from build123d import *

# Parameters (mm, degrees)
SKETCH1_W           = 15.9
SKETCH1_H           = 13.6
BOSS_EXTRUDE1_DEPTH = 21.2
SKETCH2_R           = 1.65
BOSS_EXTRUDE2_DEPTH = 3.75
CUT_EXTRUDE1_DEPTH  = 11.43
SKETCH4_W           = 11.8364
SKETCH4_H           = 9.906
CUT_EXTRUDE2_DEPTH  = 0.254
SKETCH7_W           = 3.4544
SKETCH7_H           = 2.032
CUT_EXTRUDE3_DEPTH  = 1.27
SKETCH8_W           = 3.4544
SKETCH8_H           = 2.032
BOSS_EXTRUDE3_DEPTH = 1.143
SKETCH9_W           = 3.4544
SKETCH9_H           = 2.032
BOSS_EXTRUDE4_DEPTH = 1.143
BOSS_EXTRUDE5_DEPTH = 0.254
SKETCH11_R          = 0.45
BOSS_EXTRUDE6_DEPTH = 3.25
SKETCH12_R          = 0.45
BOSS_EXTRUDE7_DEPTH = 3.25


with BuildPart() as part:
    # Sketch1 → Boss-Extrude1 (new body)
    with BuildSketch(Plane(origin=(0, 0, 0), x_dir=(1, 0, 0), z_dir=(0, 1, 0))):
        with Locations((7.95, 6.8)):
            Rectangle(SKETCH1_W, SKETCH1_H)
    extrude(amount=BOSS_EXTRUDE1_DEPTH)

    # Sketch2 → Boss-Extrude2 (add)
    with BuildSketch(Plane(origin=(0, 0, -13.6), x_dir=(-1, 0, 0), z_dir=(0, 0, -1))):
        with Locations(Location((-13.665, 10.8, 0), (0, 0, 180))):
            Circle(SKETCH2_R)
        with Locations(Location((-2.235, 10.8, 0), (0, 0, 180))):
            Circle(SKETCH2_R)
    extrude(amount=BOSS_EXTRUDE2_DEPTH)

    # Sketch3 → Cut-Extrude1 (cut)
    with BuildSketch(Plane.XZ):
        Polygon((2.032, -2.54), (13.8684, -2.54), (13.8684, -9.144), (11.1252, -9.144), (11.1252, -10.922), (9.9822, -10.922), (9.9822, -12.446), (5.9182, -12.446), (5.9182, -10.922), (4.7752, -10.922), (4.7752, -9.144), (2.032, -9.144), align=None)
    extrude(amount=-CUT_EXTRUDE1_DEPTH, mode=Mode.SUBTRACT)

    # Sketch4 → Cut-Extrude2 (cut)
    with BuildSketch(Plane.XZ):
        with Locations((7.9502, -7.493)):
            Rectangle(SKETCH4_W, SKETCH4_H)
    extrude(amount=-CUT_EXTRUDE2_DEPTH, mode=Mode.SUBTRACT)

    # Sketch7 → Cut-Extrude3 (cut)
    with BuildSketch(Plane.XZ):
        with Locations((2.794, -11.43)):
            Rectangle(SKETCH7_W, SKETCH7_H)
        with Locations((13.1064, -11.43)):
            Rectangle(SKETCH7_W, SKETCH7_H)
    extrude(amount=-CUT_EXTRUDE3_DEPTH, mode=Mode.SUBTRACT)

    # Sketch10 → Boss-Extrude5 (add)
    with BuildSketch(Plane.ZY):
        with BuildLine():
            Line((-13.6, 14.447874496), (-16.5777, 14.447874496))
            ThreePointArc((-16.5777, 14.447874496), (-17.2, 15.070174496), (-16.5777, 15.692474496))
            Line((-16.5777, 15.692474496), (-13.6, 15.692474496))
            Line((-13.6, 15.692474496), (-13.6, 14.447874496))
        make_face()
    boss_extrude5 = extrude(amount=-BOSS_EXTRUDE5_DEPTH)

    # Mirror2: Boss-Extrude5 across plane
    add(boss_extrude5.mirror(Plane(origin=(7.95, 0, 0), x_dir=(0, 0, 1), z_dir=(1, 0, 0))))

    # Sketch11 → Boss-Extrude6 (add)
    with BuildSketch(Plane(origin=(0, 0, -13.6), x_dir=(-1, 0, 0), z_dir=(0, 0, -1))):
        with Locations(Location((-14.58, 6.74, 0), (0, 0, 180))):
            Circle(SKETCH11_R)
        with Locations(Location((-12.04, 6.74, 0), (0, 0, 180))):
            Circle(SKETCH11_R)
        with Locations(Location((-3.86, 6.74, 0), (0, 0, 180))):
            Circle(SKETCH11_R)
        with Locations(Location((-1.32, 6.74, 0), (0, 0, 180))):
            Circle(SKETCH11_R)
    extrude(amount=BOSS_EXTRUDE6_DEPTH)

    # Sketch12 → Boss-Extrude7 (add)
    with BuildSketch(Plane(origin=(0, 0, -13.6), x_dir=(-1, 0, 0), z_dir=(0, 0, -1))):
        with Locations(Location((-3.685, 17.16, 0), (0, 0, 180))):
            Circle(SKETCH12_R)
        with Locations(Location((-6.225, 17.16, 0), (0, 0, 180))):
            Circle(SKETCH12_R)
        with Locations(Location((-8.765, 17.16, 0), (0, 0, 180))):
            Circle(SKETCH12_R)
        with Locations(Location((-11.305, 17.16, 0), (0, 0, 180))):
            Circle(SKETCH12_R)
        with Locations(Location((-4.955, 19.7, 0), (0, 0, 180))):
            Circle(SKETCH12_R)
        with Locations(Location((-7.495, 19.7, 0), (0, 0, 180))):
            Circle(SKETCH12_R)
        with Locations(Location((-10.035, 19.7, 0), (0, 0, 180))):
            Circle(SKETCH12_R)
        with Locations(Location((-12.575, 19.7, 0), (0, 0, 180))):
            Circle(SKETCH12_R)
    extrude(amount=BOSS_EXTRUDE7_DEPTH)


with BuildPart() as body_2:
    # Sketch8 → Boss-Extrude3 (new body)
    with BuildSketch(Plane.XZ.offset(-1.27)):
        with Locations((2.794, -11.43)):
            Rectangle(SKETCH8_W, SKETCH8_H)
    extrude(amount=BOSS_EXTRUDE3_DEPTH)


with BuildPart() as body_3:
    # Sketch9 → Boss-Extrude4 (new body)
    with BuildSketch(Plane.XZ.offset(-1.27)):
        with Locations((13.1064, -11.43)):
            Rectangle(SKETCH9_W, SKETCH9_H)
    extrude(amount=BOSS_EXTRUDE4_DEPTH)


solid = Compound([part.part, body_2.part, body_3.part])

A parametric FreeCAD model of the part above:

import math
import FreeCAD as App
import Part
import Sketcher

V = App.Vector
Q = App.Units.Quantity

doc = App.newDocument("Part")
body = doc.addObject("PartDesign::Body", "Body")

# Sketch on XZ plane
sketch1 = doc.addObject("Sketcher::SketchObject", "Sketch")
body.addObject(sketch1)
sketch1.AttachmentSupport = (doc.XZ_Plane, [""])
sketch1.MapMode = "FlatFace"
sketch1.addGeometry(Part.LineSegment(V(0, -13.6, 0), V(0, 0, 0)), False)
sketch1.addGeometry(Part.LineSegment(V(0, 0, 0), V(15.9, 0, 0)), False)
sketch1.addGeometry(Part.LineSegment(V(15.9, 0, 0), V(15.9, -13.6, 0)), False)
sketch1.addGeometry(Part.LineSegment(V(15.9, -13.6, 0), V(0, -13.6, 0)), False)
sketch1.addConstraint(Sketcher.Constraint("Coincident", 0, 2, 1, 1))
sketch1.addConstraint(Sketcher.Constraint("Coincident", 1, 2, 2, 1))
sketch1.addConstraint(Sketcher.Constraint("Coincident", 2, 2, 3, 1))
sketch1.addConstraint(Sketcher.Constraint("Coincident", 3, 2, 0, 1))
sketch1.addConstraint(Sketcher.Constraint("Vertical", 0))
sketch1.addConstraint(Sketcher.Constraint("Horizontal", 1))
sketch1.addConstraint(Sketcher.Constraint("Vertical", 2))
sketch1.addConstraint(Sketcher.Constraint("Horizontal", 3))
sketch1.addConstraint(Sketcher.Constraint("Coincident", 0, 2, -1, 1))
sketch1.addConstraint(Sketcher.Constraint("DistanceX", 1, 1, 1, 2, 15.9))
sketch1.addConstraint(Sketcher.Constraint("DistanceY", 0, 1, 0, 2, 13.6))
pad1 = doc.addObject("PartDesign::Pad", "Pad")
body.addObject(pad1)
pad1.Profile = sketch1
pad1.Length = 21.2
pad1.Reversed = True

# Sketch on XY plane
sketch2 = doc.addObject("Sketcher::SketchObject", "Sketch001")
body.addObject(sketch2)
sketch2.AttachmentSupport = (doc.XY_Plane, [""])
sketch2.MapMode = "FlatFace"
sketch2.AttachmentOffset = App.Placement(V(0, 0, -13.6), App.Rotation())
sketch2.addGeometry(Part.Circle(V(13.665, 10.8, 0), V(0, 0, 1), 1.65), False)
sketch2.addGeometry(Part.Circle(V(2.235, 10.8, 0), V(0, 0, 1), 1.65), False)
sketch2.addConstraint(Sketcher.Constraint("Equal", 0, 1))
sketch2.addConstraint(Sketcher.Constraint("Horizontal", 0, 3, 1, 3))
sketch2.addConstraint(Sketcher.Constraint("Diameter", 0, 3.3))
sketch2.addConstraint(Sketcher.Constraint("DistanceX", 1, 3, 0, 3, Q("0.45 in")))
sketch2.addConstraint(Sketcher.Constraint("DistanceX", -1, 1, 0, 3, 13.665))
sketch2.addConstraint(Sketcher.Constraint("DistanceY", -1, 1, 0, 3, 10.8))
pad2 = doc.addObject("PartDesign::Pad", "Pad001")
body.addObject(pad2)
pad2.Profile = sketch2
pad2.Length = 3.75
pad2.Reversed = True

# Sketch on XZ plane
sketch3 = doc.addObject("Sketcher::SketchObject", "Sketch002")
body.addObject(sketch3)
sketch3.AttachmentSupport = (doc.XZ_Plane, [""])
sketch3.MapMode = "FlatFace"
sketch3.addGeometry(Part.LineSegment(V(13.8684, -2.54, 0), V(2.032, -2.54, 0)), False)
sketch3.addGeometry(Part.LineSegment(V(2.032, -2.54, 0), V(2.032, -9.144, 0)), False)
sketch3.addGeometry(Part.LineSegment(V(2.032, -9.144, 0), V(4.7752, -9.144, 0)), False)
sketch3.addGeometry(Part.LineSegment(V(4.7752, -9.144, 0), V(4.7752, -10.922, 0)), False)
sketch3.addGeometry(Part.LineSegment(V(4.7752, -10.922, 0), V(5.9182, -10.922, 0)), False)
sketch3.addGeometry(Part.LineSegment(V(5.9182, -10.922, 0), V(5.9182, -12.446, 0)), False)
sketch3.addGeometry(Part.LineSegment(V(5.9182, -12.446, 0), V(9.9822, -12.446, 0)), False)
sketch3.addGeometry(Part.LineSegment(V(9.9822, -12.446, 0), V(9.9822, -10.922, 0)), False)
sketch3.addGeometry(Part.LineSegment(V(9.9822, -10.922, 0), V(11.1252, -10.922, 0)), False)
sketch3.addGeometry(Part.LineSegment(V(11.1252, -10.922, 0), V(11.1252, -9.144, 0)), False)
sketch3.addGeometry(Part.LineSegment(V(11.1252, -9.144, 0), V(13.8684, -9.144, 0)), False)
sketch3.addGeometry(Part.LineSegment(V(13.8684, -9.144, 0), V(13.8684, -2.54, 0)), False)
sketch3.addConstraint(Sketcher.Constraint("Coincident", 0, 2, 1, 1))
sketch3.addConstraint(Sketcher.Constraint("Coincident", 1, 2, 2, 1))
sketch3.addConstraint(Sketcher.Constraint("Coincident", 2, 2, 3, 1))
sketch3.addConstraint(Sketcher.Constraint("Coincident", 3, 2, 4, 1))
sketch3.addConstraint(Sketcher.Constraint("Coincident", 4, 2, 5, 1))
sketch3.addConstraint(Sketcher.Constraint("Coincident", 5, 2, 6, 1))
sketch3.addConstraint(Sketcher.Constraint("Coincident", 6, 2, 7, 1))
sketch3.addConstraint(Sketcher.Constraint("Coincident", 7, 2, 8, 1))
sketch3.addConstraint(Sketcher.Constraint("Coincident", 8, 2, 9, 1))
sketch3.addConstraint(Sketcher.Constraint("Coincident", 9, 2, 10, 1))
sketch3.addConstraint(Sketcher.Constraint("Coincident", 10, 2, 11, 1))
sketch3.addConstraint(Sketcher.Constraint("Coincident", 11, 2, 0, 1))
sketch3.addConstraint(Sketcher.Constraint("Horizontal", 0))
sketch3.addConstraint(Sketcher.Constraint("Vertical", 1))
sketch3.addConstraint(Sketcher.Constraint("Horizontal", 2))
sketch3.addConstraint(Sketcher.Constraint("Vertical", 3))
sketch3.addConstraint(Sketcher.Constraint("Horizontal", 4))
sketch3.addConstraint(Sketcher.Constraint("Vertical", 5))
sketch3.addConstraint(Sketcher.Constraint("Horizontal", 6))
sketch3.addConstraint(Sketcher.Constraint("Vertical", 7))
sketch3.addConstraint(Sketcher.Constraint("Horizontal", 8))
sketch3.addConstraint(Sketcher.Constraint("Vertical", 9))
sketch3.addConstraint(Sketcher.Constraint("Horizontal", 10))
sketch3.addConstraint(Sketcher.Constraint("Vertical", 11))
sketch3.addConstraint(Sketcher.Constraint("Horizontal", 4, 2, 7, 2))
sketch3.addConstraint(Sketcher.Constraint("Horizontal", 2, 2, 9, 2))
sketch3.addConstraint(Sketcher.Constraint("Equal", 4, 8))
sketch3.addConstraint(Sketcher.Constraint("Equal", 2, 10))
sketch3.addConstraint(Sketcher.Constraint("DistanceX", 6, 1, 6, 2, Q("0.16 in")))
sketch3.addConstraint(Sketcher.Constraint("DistanceY", 1, 2, 1, 1, Q("0.26 in")))
sketch3.addConstraint(Sketcher.Constraint("DistanceY", 3, 2, 3, 1, Q("0.07 in")))
sketch3.addConstraint(Sketcher.Constraint("DistanceY", 5, 2, 5, 1, Q("0.06 in")))
sketch3.addConstraint(Sketcher.Constraint("DistanceY", 0, 2, -1, 1, Q("0.1 in")))
sketch3.addConstraint(Sketcher.Constraint("DistanceX", 0, 2, 0, 1, Q("0.466 in")))
sketch3.addConstraint(Sketcher.Constraint("DistanceX", 2, 1, 2, 2, Q("0.108 in")))
sketch3.addConstraint(Sketcher.Constraint("DistanceX", -1, 1, 0, 2, Q("0.08 in")))
pocket1 = doc.addObject("PartDesign::Pocket", "Pocket")
body.addObject(pocket1)
pocket1.Profile = sketch3
pocket1.Length = Q("0.45 in")

# Sketch on XZ plane
sketch4 = doc.addObject("Sketcher::SketchObject", "Sketch003")
body.addObject(sketch4)
sketch4.AttachmentSupport = (doc.XZ_Plane, [""])
sketch4.MapMode = "FlatFace"
sketch4.addGeometry(Part.LineSegment(V(2.032, -2.54, 0), V(2.032, -12.446, 0)), False)
sketch4.addGeometry(Part.LineSegment(V(2.032, -12.446, 0), V(13.8684, -12.446, 0)), False)
sketch4.addGeometry(Part.LineSegment(V(13.8684, -12.446, 0), V(13.8684, -2.54, 0)), False)
sketch4.addGeometry(Part.LineSegment(V(13.8684, -2.54, 0), V(2.032, -2.54, 0)), False)
sketch4.addConstraint(Sketcher.Constraint("Coincident", 0, 2, 1, 1))
sketch4.addConstraint(Sketcher.Constraint("Coincident", 1, 2, 2, 1))
sketch4.addConstraint(Sketcher.Constraint("Coincident", 2, 2, 3, 1))
sketch4.addConstraint(Sketcher.Constraint("Coincident", 3, 2, 0, 1))
sketch4.addConstraint(Sketcher.Constraint("Vertical", 0))
sketch4.addConstraint(Sketcher.Constraint("Horizontal", 1))
sketch4.addConstraint(Sketcher.Constraint("Vertical", 2))
sketch4.addConstraint(Sketcher.Constraint("Horizontal", 3))
sketch4.addConstraint(Sketcher.Constraint("DistanceY", 0, 2, 0, 1, Q("0.39 in")))
sketch4.addConstraint(Sketcher.Constraint("DistanceY", 2, 2, -1, 1, Q("0.1 in")))
sketch4.addConstraint(Sketcher.Constraint("DistanceX", 1, 1, 1, 2, Q("0.466 in")))
sketch4.addConstraint(Sketcher.Constraint("DistanceX", -1, 1, 0, 2, Q("0.08 in")))
pocket2 = doc.addObject("PartDesign::Pocket", "Pocket001")
body.addObject(pocket2)
pocket2.Profile = sketch4
pocket2.Length = Q("0.01 in")

# Sketch on XZ plane
sketch5 = doc.addObject("Sketcher::SketchObject", "Sketch004")
body.addObject(sketch5)
sketch5.AttachmentSupport = (doc.XZ_Plane, [""])
sketch5.MapMode = "FlatFace"
sketch5.addGeometry(Part.LineSegment(V(1.0668, -10.414, 0), V(1.0668, -12.446, 0)), False)
sketch5.addGeometry(Part.LineSegment(V(1.0668, -12.446, 0), V(4.5212, -12.446, 0)), False)
sketch5.addGeometry(Part.LineSegment(V(4.5212, -12.446, 0), V(4.5212, -10.414, 0)), False)
sketch5.addGeometry(Part.LineSegment(V(4.5212, -10.414, 0), V(1.0668, -10.414, 0)), False)
sketch5.addGeometry(Part.LineSegment(V(11.3792, -10.414, 0), V(11.3792, -12.446, 0)), False)
sketch5.addGeometry(Part.LineSegment(V(11.3792, -12.446, 0), V(14.8336, -12.446, 0)), False)
sketch5.addGeometry(Part.LineSegment(V(14.8336, -12.446, 0), V(14.8336, -10.414, 0)), False)
sketch5.addGeometry(Part.LineSegment(V(14.8336, -10.414, 0), V(11.3792, -10.414, 0)), False)
sketch5.addConstraint(Sketcher.Constraint("Coincident", 0, 2, 1, 1))
sketch5.addConstraint(Sketcher.Constraint("Coincident", 1, 2, 2, 1))
sketch5.addConstraint(Sketcher.Constraint("Coincident", 2, 2, 3, 1))
sketch5.addConstraint(Sketcher.Constraint("Coincident", 3, 2, 0, 1))
sketch5.addConstraint(Sketcher.Constraint("Coincident", 4, 2, 5, 1))
sketch5.addConstraint(Sketcher.Constraint("Coincident", 5, 2, 6, 1))
sketch5.addConstraint(Sketcher.Constraint("Coincident", 6, 2, 7, 1))
sketch5.addConstraint(Sketcher.Constraint("Coincident", 7, 2, 4, 1))
sketch5.addConstraint(Sketcher.Constraint("Vertical", 0))
sketch5.addConstraint(Sketcher.Constraint("Horizontal", 1))
sketch5.addConstraint(Sketcher.Constraint("Vertical", 2))
sketch5.addConstraint(Sketcher.Constraint("Horizontal", 3))
sketch5.addConstraint(Sketcher.Constraint("Vertical", 4))
sketch5.addConstraint(Sketcher.Constraint("Horizontal", 5))
sketch5.addConstraint(Sketcher.Constraint("Vertical", 6))
sketch5.addConstraint(Sketcher.Constraint("Horizontal", 7))
sketch5.addConstraint(Sketcher.Constraint("Horizontal", 1, 2, 4, 2))
sketch5.addConstraint(Sketcher.Constraint("Horizontal", 3, 2, 6, 2))
sketch5.addConstraint(Sketcher.Constraint("Equal", 3, 5))
sketch5.addConstraint(Sketcher.Constraint("DistanceY", 0, 2, 0, 1, Q("0.08 in")))
sketch5.addConstraint(Sketcher.Constraint("DistanceX", 1, 1, 1, 2, Q("0.136 in")))
sketch5.addConstraint(Sketcher.Constraint("DistanceY", 0, 2, -1, 1, Q("0.49 in")))
sketch5.addConstraint(Sketcher.Constraint("DistanceX", 1, 2, 4, 2, Q("0.27 in")))
sketch5.addConstraint(Sketcher.Constraint("DistanceX", -1, 1, 0, 2, Q("0.042 in")))
pocket3 = doc.addObject("PartDesign::Pocket", "Pocket002")
body.addObject(pocket3)
pocket3.Profile = sketch5
pocket3.Length = Q("0.05 in")

# Sketch on YZ plane
sketch6 = doc.addObject("Sketcher::SketchObject", "Sketch005")
body.addObject(sketch6)
sketch6.AttachmentSupport = (doc.YZ_Plane, [""])
sketch6.MapMode = "FlatFace"
sketch6.addGeometry(Part.LineSegment(V(14.447874, -16.5777, 0), V(14.447874, -13.6, 0)), False)
sketch6.addGeometry(Part.LineSegment(V(14.447874, -13.6, 0), V(15.692474, -13.6, 0)), False)
sketch6.addGeometry(Part.LineSegment(V(15.692474, -13.6, 0), V(15.692474, -16.5777, 0)), False)
sketch6.addGeometry(Part.ArcOfCircle(Part.Circle(V(15.070174, -16.5777, 0), V(0, 0, 1), 0.6223), math.radians(180), math.radians(360)), False)
sketch6.addConstraint(Sketcher.Constraint("Coincident", 0, 2, 1, 1))
sketch6.addConstraint(Sketcher.Constraint("Coincident", 1, 2, 2, 1))
sketch6.addConstraint(Sketcher.Constraint("Tangent", 2, 2, 3, 2))
sketch6.addConstraint(Sketcher.Constraint("Tangent", 3, 1, 0, 1))
sketch6.addConstraint(Sketcher.Constraint("Vertical", 0))
sketch6.addConstraint(Sketcher.Constraint("Horizontal", 1))
sketch6.addConstraint(Sketcher.Constraint("Vertical", 2))
sketch6.addConstraint(Sketcher.Constraint("Radius", 3, Q("0.0245 in")))
sketch6.addConstraint(Sketcher.Constraint("DistanceY", 0, 1, 0, 2, 2.9777))
sketch6.addConstraint(Sketcher.Constraint("DistanceY", 3, 3, -1, 1, 16.5777))
sketch6.addConstraint(Sketcher.Constraint("DistanceX", -1, 1, 3, 3, 15.070174))
pad3 = doc.addObject("PartDesign::Pad", "Pad002")
body.addObject(pad3)
pad3.Profile = sketch6
pad3.Length = Q("0.01 in")
doc.recompute()

datumplane = doc.addObject("PartDesign::Plane", "DatumPlane")
body.addObject(datumplane)
datumplane.AttachmentSupport = (doc.YZ_Plane, [""])
datumplane.MapMode = "FlatFace"
datumplane.AttachmentOffset = App.Placement(V(0, 0, 7.95), App.Rotation())
mirrored = doc.addObject("PartDesign::Mirrored", "Mirrored")
body.addObject(mirrored)
mirrored.Originals = [pad3]
mirrored.MirrorPlane = (datumplane, [""])
body.Tip = mirrored

# Sketch on XY plane
sketch7 = doc.addObject("Sketcher::SketchObject", "Sketch006")
body.addObject(sketch7)
sketch7.AttachmentSupport = (doc.XY_Plane, [""])
sketch7.MapMode = "FlatFace"
sketch7.AttachmentOffset = App.Placement(V(0, 0, -13.6), App.Rotation())
sketch7.addGeometry(Part.Circle(V(14.58, 6.74, 0), V(0, 0, 1), 0.45), False)
sketch7.addGeometry(Part.Circle(V(12.04, 6.74, 0), V(0, 0, 1), 0.45), False)
sketch7.addGeometry(Part.Circle(V(3.86, 6.74, 0), V(0, 0, 1), 0.45), False)
sketch7.addGeometry(Part.Circle(V(1.32, 6.74, 0), V(0, 0, 1), 0.45), False)
sketch7.addConstraint(Sketcher.Constraint("Equal", 0, 1))
sketch7.addConstraint(Sketcher.Constraint("Equal", 1, 2))
sketch7.addConstraint(Sketcher.Constraint("Equal", 2, 3))
sketch7.addConstraint(Sketcher.Constraint("Horizontal", 0, 3, 1, 3))
sketch7.addConstraint(Sketcher.Constraint("Horizontal", 1, 3, 2, 3))
sketch7.addConstraint(Sketcher.Constraint("Horizontal", 2, 3, 3, 3))
sketch7.addConstraint(Sketcher.Constraint("DistanceX", 1, 3, 0, 3, Q("0.1 in")))
sketch7.addConstraint(Sketcher.Constraint("DistanceX", 3, 3, 2, 3, Q("0.1 in")))
sketch7.addConstraint(Sketcher.Constraint("Diameter", 0, 0.9))
sketch7.addConstraint(Sketcher.Constraint("DistanceX", -1, 1, 0, 3, 14.58))
sketch7.addConstraint(Sketcher.Constraint("DistanceY", -1, 1, 0, 3, 6.74))
sketch7.addConstraint(Sketcher.Constraint("DistanceX", -1, 1, 2, 3, 3.86))
pad4 = doc.addObject("PartDesign::Pad", "Pad003")
body.addObject(pad4)
pad4.Profile = sketch7
pad4.Length = 3.25
pad4.Reversed = True

# Sketch on XY plane
sketch8 = doc.addObject("Sketcher::SketchObject", "Sketch007")
body.addObject(sketch8)
sketch8.AttachmentSupport = (doc.XY_Plane, [""])
sketch8.MapMode = "FlatFace"
sketch8.AttachmentOffset = App.Placement(V(0, 0, -13.6), App.Rotation())
sketch8.addGeometry(Part.Circle(V(3.685, 17.16, 0), V(0, 0, 1), 0.45), False)
sketch8.addGeometry(Part.Circle(V(6.225, 17.16, 0), V(0, 0, 1), 0.45), False)
sketch8.addGeometry(Part.Circle(V(8.765, 17.16, 0), V(0, 0, 1), 0.45), False)
sketch8.addGeometry(Part.Circle(V(11.305, 17.16, 0), V(0, 0, 1), 0.45), False)
sketch8.addGeometry(Part.Circle(V(4.955, 19.7, 0), V(0, 0, 1), 0.45), False)
sketch8.addGeometry(Part.Circle(V(7.495, 19.7, 0), V(0, 0, 1), 0.45), False)
sketch8.addGeometry(Part.Circle(V(10.035, 19.7, 0), V(0, 0, 1), 0.45), False)
sketch8.addGeometry(Part.Circle(V(12.575, 19.7, 0), V(0, 0, 1), 0.45), False)
sketch8.addConstraint(Sketcher.Constraint("Equal", 0, 1))
sketch8.addConstraint(Sketcher.Constraint("Equal", 1, 2))
sketch8.addConstraint(Sketcher.Constraint("Equal", 2, 3))
sketch8.addConstraint(Sketcher.Constraint("Equal", 3, 4))
sketch8.addConstraint(Sketcher.Constraint("Equal", 4, 5))
sketch8.addConstraint(Sketcher.Constraint("Equal", 5, 6))
sketch8.addConstraint(Sketcher.Constraint("Equal", 6, 7))
sketch8.addConstraint(Sketcher.Constraint("Horizontal", 0, 3, 1, 3))
sketch8.addConstraint(Sketcher.Constraint("Horizontal", 1, 3, 2, 3))
sketch8.addConstraint(Sketcher.Constraint("Horizontal", 2, 3, 3, 3))
sketch8.addConstraint(Sketcher.Constraint("Horizontal", 4, 3, 5, 3))
sketch8.addConstraint(Sketcher.Constraint("Horizontal", 5, 3, 6, 3))
sketch8.addConstraint(Sketcher.Constraint("Horizontal", 6, 3, 7, 3))
sketch8.addConstraint(Sketcher.Constraint("DistanceX", 0, 3, 1, 3, Q("0.1 in")))
sketch8.addConstraint(Sketcher.Constraint("DistanceX", 1, 3, 2, 3, Q("0.1 in")))
sketch8.addConstraint(Sketcher.Constraint("DistanceX", 2, 3, 3, 3, Q("0.1 in")))
sketch8.addConstraint(Sketcher.Constraint("DistanceY", 1, 3, 4, 3, Q("0.1 in")))
sketch8.addConstraint(Sketcher.Constraint("DistanceX", 4, 3, 5, 3, Q("0.1 in")))
sketch8.addConstraint(Sketcher.Constraint("DistanceX", 5, 3, 6, 3, Q("0.1 in")))
sketch8.addConstraint(Sketcher.Constraint("DistanceX", 6, 3, 7, 3, Q("0.1 in")))
sketch8.addConstraint(Sketcher.Constraint("Diameter", 0, 0.9))
sketch8.addConstraint(Sketcher.Constraint("DistanceX", 4, 3, 1, 3, Q("0.05 in")))
sketch8.addConstraint(Sketcher.Constraint("DistanceX", -1, 1, 0, 3, 3.685))
sketch8.addConstraint(Sketcher.Constraint("DistanceY", -1, 1, 0, 3, 17.16))
pad5 = doc.addObject("PartDesign::Pad", "Pad004")
body.addObject(pad5)
pad5.Profile = sketch8
pad5.Length = 3.25
pad5.Reversed = True
body2 = doc.addObject("PartDesign::Body", "Body001")

# Sketch on XZ plane
sketch9 = doc.addObject("Sketcher::SketchObject", "Sketch008")
body2.addObject(sketch9)
sketch9.AttachmentSupport = (doc.getObject("XZ_Plane001"), [""])
sketch9.MapMode = "FlatFace"
sketch9.AttachmentOffset = App.Placement(V(0, 0, -0.05 * 25.4), App.Rotation())
sketch9.addGeometry(Part.LineSegment(V(1.0668, -10.414, 0), V(1.0668, -12.446, 0)), False)
sketch9.addGeometry(Part.LineSegment(V(1.0668, -12.446, 0), V(4.5212, -12.446, 0)), False)
sketch9.addGeometry(Part.LineSegment(V(4.5212, -12.446, 0), V(4.5212, -10.414, 0)), False)
sketch9.addGeometry(Part.LineSegment(V(4.5212, -10.414, 0), V(1.0668, -10.414, 0)), False)
sketch9.addConstraint(Sketcher.Constraint("Coincident", 0, 2, 1, 1))
sketch9.addConstraint(Sketcher.Constraint("Coincident", 1, 2, 2, 1))
sketch9.addConstraint(Sketcher.Constraint("Coincident", 2, 2, 3, 1))
sketch9.addConstraint(Sketcher.Constraint("Coincident", 3, 2, 0, 1))
sketch9.addConstraint(Sketcher.Constraint("Vertical", 0))
sketch9.addConstraint(Sketcher.Constraint("Horizontal", 1))
sketch9.addConstraint(Sketcher.Constraint("Vertical", 2))
sketch9.addConstraint(Sketcher.Constraint("Horizontal", 3))
sketch9.addConstraint(Sketcher.Constraint("DistanceY", 0, 2, 0, 1, Q("0.08 in")))
sketch9.addConstraint(Sketcher.Constraint("DistanceX", 1, 1, 1, 2, Q("0.136 in")))
sketch9.addConstraint(Sketcher.Constraint("DistanceY", 0, 2, -1, 1, Q("0.49 in")))
sketch9.addConstraint(Sketcher.Constraint("DistanceX", -1, 1, 0, 2, Q("0.042 in")))
pad6 = doc.addObject("PartDesign::Pad", "Pad005")
body2.addObject(pad6)
pad6.Profile = sketch9
pad6.Length = Q("0.045 in")
body3 = doc.addObject("PartDesign::Body", "Body002")

# Sketch on XZ plane
sketch10 = doc.addObject("Sketcher::SketchObject", "Sketch009")
body3.addObject(sketch10)
sketch10.AttachmentSupport = (doc.getObject("XZ_Plane002"), [""])
sketch10.MapMode = "FlatFace"
sketch10.AttachmentOffset = App.Placement(V(0, 0, -0.05 * 25.4), App.Rotation())
sketch10.addGeometry(Part.LineSegment(V(11.3792, -10.414, 0), V(11.3792, -12.446, 0)), False)
sketch10.addGeometry(Part.LineSegment(V(11.3792, -12.446, 0), V(14.8336, -12.446, 0)), False)
sketch10.addGeometry(Part.LineSegment(V(14.8336, -12.446, 0), V(14.8336, -10.414, 0)), False)
sketch10.addGeometry(Part.LineSegment(V(14.8336, -10.414, 0), V(11.3792, -10.414, 0)), False)
sketch10.addConstraint(Sketcher.Constraint("Coincident", 0, 2, 1, 1))
sketch10.addConstraint(Sketcher.Constraint("Coincident", 1, 2, 2, 1))
sketch10.addConstraint(Sketcher.Constraint("Coincident", 2, 2, 3, 1))
sketch10.addConstraint(Sketcher.Constraint("Coincident", 3, 2, 0, 1))
sketch10.addConstraint(Sketcher.Constraint("Vertical", 0))
sketch10.addConstraint(Sketcher.Constraint("Horizontal", 1))
sketch10.addConstraint(Sketcher.Constraint("Vertical", 2))
sketch10.addConstraint(Sketcher.Constraint("Horizontal", 3))
sketch10.addConstraint(Sketcher.Constraint("DistanceY", 0, 2, 0, 1, Q("0.08 in")))
sketch10.addConstraint(Sketcher.Constraint("DistanceX", 1, 1, 1, 2, Q("0.136 in")))
sketch10.addConstraint(Sketcher.Constraint("DistanceY", 0, 2, -1, 1, Q("0.49 in")))
sketch10.addConstraint(Sketcher.Constraint("DistanceX", -1, 1, 0, 2, Q("0.448 in")))
pad7 = doc.addObject("PartDesign::Pad", "Pad006")
body3.addObject(pad7)
pad7.Profile = sketch10
pad7.Length = Q("0.045 in")

doc.recompute()
